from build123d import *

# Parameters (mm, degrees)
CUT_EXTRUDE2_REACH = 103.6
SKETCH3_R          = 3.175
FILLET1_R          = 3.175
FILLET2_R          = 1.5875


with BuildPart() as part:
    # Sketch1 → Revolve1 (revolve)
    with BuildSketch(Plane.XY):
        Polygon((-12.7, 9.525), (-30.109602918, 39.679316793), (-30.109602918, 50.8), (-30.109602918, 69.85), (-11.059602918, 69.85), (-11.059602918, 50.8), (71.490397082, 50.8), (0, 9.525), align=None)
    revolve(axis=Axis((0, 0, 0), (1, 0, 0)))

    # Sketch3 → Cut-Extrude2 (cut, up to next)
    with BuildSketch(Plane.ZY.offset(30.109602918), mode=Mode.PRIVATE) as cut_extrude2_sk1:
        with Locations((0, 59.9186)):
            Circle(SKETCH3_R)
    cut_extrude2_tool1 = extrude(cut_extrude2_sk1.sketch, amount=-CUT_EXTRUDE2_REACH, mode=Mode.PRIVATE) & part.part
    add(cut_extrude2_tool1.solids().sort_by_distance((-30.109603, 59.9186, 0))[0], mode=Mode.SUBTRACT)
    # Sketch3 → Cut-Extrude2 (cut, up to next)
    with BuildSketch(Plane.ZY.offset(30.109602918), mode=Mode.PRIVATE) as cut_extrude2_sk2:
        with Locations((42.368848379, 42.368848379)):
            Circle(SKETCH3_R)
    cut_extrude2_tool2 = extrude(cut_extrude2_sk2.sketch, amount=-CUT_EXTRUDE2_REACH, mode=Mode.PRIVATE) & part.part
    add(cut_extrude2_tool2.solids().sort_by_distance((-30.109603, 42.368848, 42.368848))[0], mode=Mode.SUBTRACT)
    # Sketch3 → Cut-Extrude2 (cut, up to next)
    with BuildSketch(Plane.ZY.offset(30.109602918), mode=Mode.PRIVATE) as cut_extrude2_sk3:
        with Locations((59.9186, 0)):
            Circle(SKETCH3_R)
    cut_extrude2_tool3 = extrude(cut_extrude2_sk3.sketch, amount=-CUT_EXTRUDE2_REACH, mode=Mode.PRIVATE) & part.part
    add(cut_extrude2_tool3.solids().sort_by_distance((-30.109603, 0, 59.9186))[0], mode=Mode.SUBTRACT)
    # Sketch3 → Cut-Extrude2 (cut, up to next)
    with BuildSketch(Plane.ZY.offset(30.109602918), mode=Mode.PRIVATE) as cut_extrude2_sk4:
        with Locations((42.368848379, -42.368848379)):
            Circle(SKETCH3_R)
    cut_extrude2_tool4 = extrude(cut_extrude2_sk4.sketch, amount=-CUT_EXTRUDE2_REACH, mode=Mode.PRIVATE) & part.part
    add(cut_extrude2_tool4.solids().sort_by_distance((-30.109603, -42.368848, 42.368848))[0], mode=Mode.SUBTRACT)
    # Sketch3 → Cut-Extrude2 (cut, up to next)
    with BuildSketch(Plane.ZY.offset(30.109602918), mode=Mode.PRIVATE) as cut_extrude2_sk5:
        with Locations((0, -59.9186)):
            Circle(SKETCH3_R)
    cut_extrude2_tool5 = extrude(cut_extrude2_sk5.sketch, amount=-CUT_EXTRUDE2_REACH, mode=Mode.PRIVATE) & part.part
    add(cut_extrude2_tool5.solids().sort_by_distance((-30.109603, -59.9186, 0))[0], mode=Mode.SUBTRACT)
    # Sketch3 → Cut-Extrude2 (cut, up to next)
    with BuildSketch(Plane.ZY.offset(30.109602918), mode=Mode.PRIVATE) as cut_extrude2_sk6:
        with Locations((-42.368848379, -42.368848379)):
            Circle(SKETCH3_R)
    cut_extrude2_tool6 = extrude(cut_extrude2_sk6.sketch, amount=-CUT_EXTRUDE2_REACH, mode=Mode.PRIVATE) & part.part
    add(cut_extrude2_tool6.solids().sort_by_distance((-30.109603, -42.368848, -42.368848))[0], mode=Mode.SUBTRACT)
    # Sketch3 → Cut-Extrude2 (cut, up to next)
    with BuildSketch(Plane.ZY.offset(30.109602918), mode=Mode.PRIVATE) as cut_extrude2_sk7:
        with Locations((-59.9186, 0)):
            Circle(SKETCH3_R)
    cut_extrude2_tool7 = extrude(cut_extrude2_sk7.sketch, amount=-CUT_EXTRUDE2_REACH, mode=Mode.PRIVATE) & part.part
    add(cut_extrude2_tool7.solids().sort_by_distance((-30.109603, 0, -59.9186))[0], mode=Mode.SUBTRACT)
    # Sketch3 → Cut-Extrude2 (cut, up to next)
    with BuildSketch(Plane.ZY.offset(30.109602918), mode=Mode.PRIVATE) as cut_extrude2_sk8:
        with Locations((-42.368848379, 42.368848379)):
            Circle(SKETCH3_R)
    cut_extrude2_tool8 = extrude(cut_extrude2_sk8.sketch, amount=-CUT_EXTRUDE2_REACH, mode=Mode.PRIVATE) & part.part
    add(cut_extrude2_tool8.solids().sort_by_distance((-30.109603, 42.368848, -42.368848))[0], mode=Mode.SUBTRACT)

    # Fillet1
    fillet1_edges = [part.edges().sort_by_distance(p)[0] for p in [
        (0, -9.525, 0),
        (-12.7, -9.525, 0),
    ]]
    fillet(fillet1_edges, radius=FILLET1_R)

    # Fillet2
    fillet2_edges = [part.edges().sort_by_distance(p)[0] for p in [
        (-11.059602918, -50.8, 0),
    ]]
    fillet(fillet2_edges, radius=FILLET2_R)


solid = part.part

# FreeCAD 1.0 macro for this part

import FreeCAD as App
import Part
import Sketcher
Q = App.Units.Quantity


def edges_at(feature, points):
    """Names of the edges that pass closest to the given points."""
    edges = feature.Shape.Edges
    near = lambda p: min(range(len(edges)), key=lambda i: edges[i].distToShape(Part.Vertex(*p))[0])
    return sorted({f"Edge{near(p) + 1}" for p in points})


def add_polygon(sketch, points):
    """Adds a closed chain of lines whose ends are joined by coincident constraints."""
    first, n = sketch.GeometryCount, len(points)
    for a, b in zip(points, points[1:] + points[:1]):
        sketch.addGeometry(Part.LineSegment(App.Vector(*a, 0), App.Vector(*b, 0)), False)
    for i in range(n):
        sketch.addConstraint(Sketcher.Constraint("Coincident", first + i, 2, first + (i + 1) % n, 1))

doc = App.newDocument("Part")
params = doc.addObject("Spreadsheet::Sheet", "Params")
for row, (alias, value) in enumerate([
    ("sketch1_width", "0.5 in"),
    ("sketch1_width2", "3.25 in"),
    ("sketch1_length", "3.25 in"),
    ("revolution_angle", "360 deg"),
    ("sketch2_diameter", "0.25 in"),
    ("sketch3_diameter", "0.25 in"),
    ("sketch4_diameter", "0.25 in"),
    ("sketch5_diameter", "0.25 in"),
    ("sketch6_diameter", "0.25 in"),
    ("sketch7_diameter", "0.25 in"),
    ("sketch8_diameter", "0.25 in"),
    ("sketch9_diameter", "0.25 in"),
    ("fillet_radius", "0.125 in"),
    ("fillet2_radius", "0.0625 in"),
], start=1):
    params.set(f"A{row}", alias)
    params.set(f"B{row}", "=" + value)
    params.setAlias(f"B{row}", alias)

body = doc.addObject("PartDesign::Body", "Body")

# Sketch on XY plane
sketch1 = doc.addObject("Sketcher::SketchObject", "Sketch")
body.addObject(sketch1)
sketch1.AttachmentSupport = (doc.XY_Plane, [""])
sketch1.MapMode = "FlatFace"
add_polygon(sketch1, [(-30, 40), (-13, 10), (0, 10), (71, 51), (-11, 51), (-11, 70), (-30, 70)])  # lines 0-6
sketch1.addConstraint([
    Sketcher.Constraint("Horizontal", 1),
    Sketcher.Constraint("Horizontal", 3),
    Sketcher.Constraint("Vertical", 4),
    Sketcher.Constraint("Horizontal", 5),
    Sketcher.Constraint("Vertical", 6),
    Sketcher.Constraint("PointOnObject", 1, 2, -2),
    Sketcher.Constraint("Perpendicular", 0, 2),
    Sketcher.Constraint("Equal", 5, 4),
    Sketcher.Constraint("DistanceX", 1, 1, 1, 2, Q("0.5 in")),
    Sketcher.Constraint("DistanceY", -1, 1, 2, 2, Q("2 in")),
    Sketcher.Constraint("Angle", 0, Q("-60 deg")),
    Sketcher.Constraint("DistanceX", 5, 2, 2, 2, Q("4 in")),
    Sketcher.Constraint("DistanceX", 3, 2, 3, 1, Q("3.25 in")),
    Sketcher.Constraint("Distance", 2, Q("3.25 in")),
])
sketch1.setExpression("Constraints[15]", "Params.sketch1_width")
sketch1.setExpression("Constraints[19]", "Params.sketch1_width2")
sketch1.setExpression("Constraints[20]", "Params.sketch1_length")
revolution = doc.addObject("PartDesign::Revolution", "Revolution")
body.addObject(revolution)
revolution.Profile = sketch1
revolution.ReferenceAxis = (sketch1, ["H_Axis"])
revolution.setExpression("Angle", "Params.revolution_angle")

# Sketch on YZ plane
sketch2 = doc.addObject("Sketcher::SketchObject", "Sketch001")
body.addObject(sketch2)
sketch2.AttachmentSupport = (doc.YZ_Plane, [""])
sketch2.MapMode = "FlatFace"
sketch2.AttachmentOffset = App.Placement(App.Vector(0, 0, -30.109603), App.Rotation())
sketch2.addGeometry(Part.Circle(App.Vector(59.9, 0, 0), App.Vector(0, 0, 1), 3.2), False)
sketch2.addConstraint([
    Sketcher.Constraint("PointOnObject", 0, 3, -1),
    Sketcher.Constraint("Diameter", 0, Q("0.25 in")),
    Sketcher.Constraint("DistanceX", -1, 1, 0, 3, Q("2.359 in")),
])
sketch2.setExpression("Constraints[1]", "Params.sketch2_diameter")
pocket1 = doc.addObject("PartDesign::Pocket", "Pocket")
body.addObject(pocket1)
pocket1.Profile = sketch2
pocket1.Type = "UpToFirst"
pocket1.Reversed = True

# Sketch on YZ plane
sketch3 = doc.addObject("Sketcher::SketchObject", "Sketch002")
body.addObject(sketch3)
sketch3.AttachmentSupport = (doc.YZ_Plane, [""])
sketch3.MapMode = "FlatFace"
sketch3.AttachmentOffset = App.Placement(App.Vector(0, 0, -30.109603), App.Rotation())
sketch3.addGeometry(Part.Circle(App.Vector(42.4, 42.4, 0), App.Vector(0, 0, 1), 3.2), False)
sketch3.addConstraint([
    Sketcher.Constraint("Diameter", 0, Q("0.25 in")),
    Sketcher.Constraint("DistanceX", -1, 1, 0, 3, 42.368848),
    Sketcher.Constraint("DistanceY", -1, 1, 0, 3, 42.368848),
])
sketch3.setExpression("Constraints[0]", "Params.sketch3_diameter")
pocket2 = doc.addObject("PartDesign::Pocket", "Pocket001")
body.addObject(pocket2)
pocket2.Profile = sketch3
pocket2.Type = "UpToFirst"
pocket2.Reversed = True

# Sketch on YZ plane
sketch4 = doc.addObject("Sketcher::SketchObject", "Sketch003")
body.addObject(sketch4)
sketch4.AttachmentSupport = (doc.YZ_Plane, [""])
sketch4.MapMode = "FlatFace"
sketch4.AttachmentOffset = App.Placement(App.Vector(0, 0, -30.109603), App.Rotation())
sketch4.addGeometry(Part.Circle(App.Vector(0, 59.9, 0), App.Vector(0, 0, 1), 3.2), False)
sketch4.addConstraint([
    Sketcher.Constraint("PointOnObject", 0, 3, -2),
    Sketcher.Constraint("Diameter", 0, Q("0.25 in")),
    Sketcher.Constraint("DistanceY", -1, 1, 0, 3, Q("2.359 in")),
])
sketch4.setExpression("Constraints[1]", "Params.sketch4_diameter")
pocket3 = doc.addObject("PartDesign::Pocket", "Pocket002")
body.addObject(pocket3)
pocket3.Profile = sketch4
pocket3.Type = "UpToFirst"
pocket3.Reversed = True

# Sketch on YZ plane
sketch5 = doc.addObject("Sketcher::SketchObject", "Sketch004")
body.addObject(sketch5)
sketch5.AttachmentSupport = (doc.YZ_Plane, [""])
sketch5.MapMode = "FlatFace"
sketch5.AttachmentOffset = App.Placement(App.Vector(0, 0, -30.109603), App.Rotation())
sketch5.addGeometry(Part.Circle(App.Vector(-42.4, 42.4, 0), App.Vector(0, 0, 1), 3.2), False)
sketch5.addConstraint([
    Sketcher.Constraint("Diameter", 0, Q("0.25 in")),
    Sketcher.Constraint("DistanceX", 0, 3, -1, 1, 42.368848),
    Sketcher.Constraint("DistanceY", -1, 1, 0, 3, 42.368848),
])
sketch5.setExpression("Constraints[0]", "Params.sketch5_diameter")
pocket4 = doc.addObject("PartDesign::Pocket", "Pocket003")
body.addObject(pocket4)
pocket4.Profile = sketch5
pocket4.Type = "UpToFirst"
pocket4.Reversed = True

# Sketch on YZ plane
sketch6 = doc.addObject("Sketcher::SketchObject", "Sketch005")
body.addObject(sketch6)
sketch6.AttachmentSupport = (doc.YZ_Plane, [""])
sketch6.MapMode = "FlatFace"
sketch6.AttachmentOffset = App.Placement(App.Vector(0, 0, -30.109603), App.Rotation())
sketch6.addGeometry(Part.Circle(App.Vector(-59.9, 0, 0), App.Vector(0, 0, 1), 3.2), False)
sketch6.addConstraint([
    Sketcher.Constraint("PointOnObject", 0, 3, -1),
    Sketcher.Constraint("Diameter", 0, Q("0.25 in")),
    Sketcher.Constraint("DistanceX", 0, 3, -1, 1, Q("2.359 in")),
])
sketch6.setExpression("Constraints[1]", "Params.sketch6_diameter")
pocket5 = doc.addObject("PartDesign::Pocket", "Pocket004")
body.addObject(pocket5)
pocket5.Profile = sketch6
pocket5.Type = "UpToFirst"
pocket5.Reversed = True

# Sketch on YZ plane
sketch7 = doc.addObject("Sketcher::SketchObject", "Sketch006")
body.addObject(sketch7)
sketch7.AttachmentSupport = (doc.YZ_Plane, [""])
sketch7.MapMode = "FlatFace"
sketch7.AttachmentOffset = App.Placement(App.Vector(0, 0, -30.109603), App.Rotation())
sketch7.addGeometry(Part.Circle(App.Vector(-42.4, -42.4, 0), App.Vector(0, 0, 1), 3.2), False)
sketch7.addConstraint([
    Sketcher.Constraint("Diameter", 0, Q("0.25 in")),
    Sketcher.Constraint("DistanceX", 0, 3, -1, 1, 42.368848),
    Sketcher.Constraint("DistanceY", 0, 3, -1, 1, 42.368848),
])
sketch7.setExpression("Constraints[0]", "Params.sketch7_diameter")
pocket6 = doc.addObject("PartDesign::Pocket", "Pocket005")
body.addObject(pocket6)
pocket6.Profile = sketch7
pocket6.Type = "UpToFirst"
pocket6.Reversed = True

# Sketch on YZ plane
sketch8 = doc.addObject("Sketcher::SketchObject", "Sketch007")
body.addObject(sketch8)
sketch8.AttachmentSupport = (doc.YZ_Plane, [""])
sketch8.MapMode = "FlatFace"
sketch8.AttachmentOffset = App.Placement(App.Vector(0, 0, -30.109603), App.Rotation())
sketch8.addGeometry(Part.Circle(App.Vector(0, -59.9, 0), App.Vector(0, 0, 1), 3.2), False)
sketch8.addConstraint([
    Sketcher.Constraint("PointOnObject", 0, 3, -2),
    Sketcher.Constraint("Diameter", 0, Q("0.25 in")),
    Sketcher.Constraint("DistanceY", 0, 3, -1, 1, Q("2.359 in")),
])
sketch8.setExpression("Constraints[1]", "Params.sketch8_diameter")
pocket7 = doc.addObject("PartDesign::Pocket", "Pocket006")
body.addObject(pocket7)
pocket7.Profile = sketch8
pocket7.Type = "UpToFirst"
pocket7.Reversed = True

# Sketch on YZ plane
sketch9 = doc.addObject("Sketcher::SketchObject", "Sketch008")
body.addObject(sketch9)
sketch9.AttachmentSupport = (doc.YZ_Plane, [""])
sketch9.MapMode = "FlatFace"
sketch9.AttachmentOffset = App.Placement(App.Vector(0, 0, -30.109603), App.Rotation())
sketch9.addGeometry(Part.Circle(App.Vector(42.4, -42.4, 0), App.Vector(0, 0, 1), 3.2), False)
sketch9.addConstraint([
    Sketcher.Constraint("Diameter", 0, Q("0.25 in")),
    Sketcher.Constraint("DistanceX", -1, 1, 0, 3, 42.368848),
    Sketcher.Constraint("DistanceY", 0, 3, -1, 1, 42.368848),
])
sketch9.setExpression("Constraints[0]", "Params.sketch9_diameter")
pocket8 = doc.addObject("PartDesign::Pocket", "Pocket007")
body.addObject(pocket8)
pocket8.Profile = sketch9
pocket8.Type = "UpToFirst"
pocket8.Reversed = True
doc.recompute()

fillet = doc.addObject("PartDesign::Fillet", "Fillet")
body.addObject(fillet)
fillet.Base = (pocket8, edges_at(pocket8, [(0, -9.525, 0), (-12.7, -9.525, 0)]))
fillet.setExpression("Radius", "Params.fillet_radius")
doc.recompute()

fillet2 = doc.addObject("PartDesign::Fillet", "Fillet001")
body.addObject(fillet2)
fillet2.Base = (fillet, edges_at(fillet, [(-11.06, -50.8, 0)]))
fillet2.setExpression("Radius", "Params.fillet2_radius")

doc.recompute()
